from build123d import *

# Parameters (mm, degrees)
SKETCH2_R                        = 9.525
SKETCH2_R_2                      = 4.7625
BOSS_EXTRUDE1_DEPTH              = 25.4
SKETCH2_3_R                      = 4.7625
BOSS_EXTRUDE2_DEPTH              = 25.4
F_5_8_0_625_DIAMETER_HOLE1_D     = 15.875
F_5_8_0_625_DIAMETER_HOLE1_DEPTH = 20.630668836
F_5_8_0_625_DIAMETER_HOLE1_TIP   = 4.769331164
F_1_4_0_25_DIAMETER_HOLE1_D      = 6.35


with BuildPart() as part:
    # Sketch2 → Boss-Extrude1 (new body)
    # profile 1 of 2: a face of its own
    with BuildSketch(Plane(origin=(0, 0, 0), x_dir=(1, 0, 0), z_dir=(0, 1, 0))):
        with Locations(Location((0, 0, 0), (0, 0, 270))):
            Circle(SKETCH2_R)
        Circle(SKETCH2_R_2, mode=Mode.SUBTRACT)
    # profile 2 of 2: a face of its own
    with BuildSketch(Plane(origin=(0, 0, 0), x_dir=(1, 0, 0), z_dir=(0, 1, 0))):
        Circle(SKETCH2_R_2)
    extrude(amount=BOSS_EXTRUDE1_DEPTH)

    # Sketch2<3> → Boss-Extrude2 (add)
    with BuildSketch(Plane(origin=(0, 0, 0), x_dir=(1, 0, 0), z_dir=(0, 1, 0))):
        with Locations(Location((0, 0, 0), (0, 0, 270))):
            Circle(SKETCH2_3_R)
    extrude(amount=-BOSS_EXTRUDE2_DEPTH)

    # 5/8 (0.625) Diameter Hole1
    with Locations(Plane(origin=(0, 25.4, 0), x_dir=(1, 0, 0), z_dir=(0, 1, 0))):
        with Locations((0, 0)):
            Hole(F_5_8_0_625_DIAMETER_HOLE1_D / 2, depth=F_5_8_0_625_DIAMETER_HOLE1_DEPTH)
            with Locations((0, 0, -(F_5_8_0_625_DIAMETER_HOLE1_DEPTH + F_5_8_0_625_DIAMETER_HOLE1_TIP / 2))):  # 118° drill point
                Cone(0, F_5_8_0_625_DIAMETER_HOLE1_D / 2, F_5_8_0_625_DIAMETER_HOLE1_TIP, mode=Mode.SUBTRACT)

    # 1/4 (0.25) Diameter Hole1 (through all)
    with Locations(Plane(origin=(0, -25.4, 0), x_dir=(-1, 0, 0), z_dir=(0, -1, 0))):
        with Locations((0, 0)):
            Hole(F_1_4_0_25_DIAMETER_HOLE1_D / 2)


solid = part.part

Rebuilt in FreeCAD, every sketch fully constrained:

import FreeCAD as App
import Part
import Sketcher
Q = App.Units.Quantity

doc = App.newDocument("Part")
body = doc.addObject("PartDesign::Body", "Body")

# Sketch on XZ plane
sketch1 = body.newObject("Sketcher::SketchObject", "Sketch")
sketch1.AttachmentSupport = (doc.getObject("XZ_Plane"), [""])
sketch1.MapMode = "FlatFace"
sketch1.addGeometry(Part.Circle(App.Vector(0, 0, 0), App.Vector(0, 0, 1), 10), False)
sketch1.addConstraint([
    Sketcher.Constraint("Coincident", 0, 3, -1, 1),
    Sketcher.Constraint("Diameter", 0, Q("0.75 in")),
])
pad1 = body.newObject("PartDesign::Pad", "Pad")
pad1.Profile = sketch1
pad1.Length = Q("1 in")
pad1.Reversed = True

# Sketch on XZ plane
sketch2 = body.newObject("Sketcher::SketchObject", "Sketch001")
sketch2.AttachmentSupport = (doc.getObject("XZ_Plane"), [""])
sketch2.MapMode = "FlatFace"
sketch2.addGeometry(Part.Circle(App.Vector(0, 0, 0), App.Vector(0, 0, 1), 4.8), False)
sketch2.addConstraint([
    Sketcher.Constraint("Coincident", 0, 3, -1, 1),
    Sketcher.Constraint("Diameter", 0, Q("0.375 in")),
])
pad2 = body.newObject("PartDesign::Pad", "Pad001")
pad2.Profile = sketch2
pad2.Length = Q("1 in")

# Sketch on XZ plane
sketch3 = body.newObject("Sketcher::SketchObject", "Sketch002")
sketch3.AttachmentSupport = (doc.getObject("XZ_Plane"), [""])
sketch3.MapMode = "FlatFace"
sketch3.AttachmentOffset = App.Placement(App.Vector(0, 0, -1 * 25.4), App.Rotation())
sketch3.addGeometry(Part.Circle(App.Vector(0, 0, 0), App.Vector(0, 0, 1), 8), False)
sketch3.addConstraint([
    Sketcher.Constraint("Coincident", 0, 3, -1, 1),
    Sketcher.Constraint("Diameter", 0, Q("0.625 in")),
])
doc.recompute()
hole = body.newObject("PartDesign::Hole", "Hole")
hole.Profile = sketch3
hole.ThreadType = "None"
hole.Diameter = Q("0.625 in")
hole.DepthType = "Dimension"
hole.Depth = 20.630669
hole.DrillPoint = "Angled"
hole.DrillPointAngle = 118
hole.Reversed = True

# Sketch on XZ plane
sketch4 = body.newObject("Sketcher::SketchObject", "Sketch003")
sketch4.AttachmentSupport = (doc.getObject("XZ_Plane"), [""])
sketch4.MapMode = "FlatFace"
sketch4.AttachmentOffset = App.Placement(App.Vector(0, 0, 1 * 25.4), App.Rotation())
sketch4.addGeometry(Part.Circle(App.Vector(0, 0, 0), App.Vector(0, 0, 1), 3.2), False)
sketch4.addConstraint([
    Sketcher.Constraint("Coincident", 0, 3, -1, 1),
    Sketcher.Constraint("Diameter", 0, Q("0.25 in")),
])
doc.recompute()
hole2 = body.newObject("PartDesign::Hole", "Hole001")
hole2.Profile = sketch4
hole2.ThreadType = "None"
hole2.Diameter = Q("0.25 in")
hole2.DepthType = "ThroughAll"

doc.recompute()
